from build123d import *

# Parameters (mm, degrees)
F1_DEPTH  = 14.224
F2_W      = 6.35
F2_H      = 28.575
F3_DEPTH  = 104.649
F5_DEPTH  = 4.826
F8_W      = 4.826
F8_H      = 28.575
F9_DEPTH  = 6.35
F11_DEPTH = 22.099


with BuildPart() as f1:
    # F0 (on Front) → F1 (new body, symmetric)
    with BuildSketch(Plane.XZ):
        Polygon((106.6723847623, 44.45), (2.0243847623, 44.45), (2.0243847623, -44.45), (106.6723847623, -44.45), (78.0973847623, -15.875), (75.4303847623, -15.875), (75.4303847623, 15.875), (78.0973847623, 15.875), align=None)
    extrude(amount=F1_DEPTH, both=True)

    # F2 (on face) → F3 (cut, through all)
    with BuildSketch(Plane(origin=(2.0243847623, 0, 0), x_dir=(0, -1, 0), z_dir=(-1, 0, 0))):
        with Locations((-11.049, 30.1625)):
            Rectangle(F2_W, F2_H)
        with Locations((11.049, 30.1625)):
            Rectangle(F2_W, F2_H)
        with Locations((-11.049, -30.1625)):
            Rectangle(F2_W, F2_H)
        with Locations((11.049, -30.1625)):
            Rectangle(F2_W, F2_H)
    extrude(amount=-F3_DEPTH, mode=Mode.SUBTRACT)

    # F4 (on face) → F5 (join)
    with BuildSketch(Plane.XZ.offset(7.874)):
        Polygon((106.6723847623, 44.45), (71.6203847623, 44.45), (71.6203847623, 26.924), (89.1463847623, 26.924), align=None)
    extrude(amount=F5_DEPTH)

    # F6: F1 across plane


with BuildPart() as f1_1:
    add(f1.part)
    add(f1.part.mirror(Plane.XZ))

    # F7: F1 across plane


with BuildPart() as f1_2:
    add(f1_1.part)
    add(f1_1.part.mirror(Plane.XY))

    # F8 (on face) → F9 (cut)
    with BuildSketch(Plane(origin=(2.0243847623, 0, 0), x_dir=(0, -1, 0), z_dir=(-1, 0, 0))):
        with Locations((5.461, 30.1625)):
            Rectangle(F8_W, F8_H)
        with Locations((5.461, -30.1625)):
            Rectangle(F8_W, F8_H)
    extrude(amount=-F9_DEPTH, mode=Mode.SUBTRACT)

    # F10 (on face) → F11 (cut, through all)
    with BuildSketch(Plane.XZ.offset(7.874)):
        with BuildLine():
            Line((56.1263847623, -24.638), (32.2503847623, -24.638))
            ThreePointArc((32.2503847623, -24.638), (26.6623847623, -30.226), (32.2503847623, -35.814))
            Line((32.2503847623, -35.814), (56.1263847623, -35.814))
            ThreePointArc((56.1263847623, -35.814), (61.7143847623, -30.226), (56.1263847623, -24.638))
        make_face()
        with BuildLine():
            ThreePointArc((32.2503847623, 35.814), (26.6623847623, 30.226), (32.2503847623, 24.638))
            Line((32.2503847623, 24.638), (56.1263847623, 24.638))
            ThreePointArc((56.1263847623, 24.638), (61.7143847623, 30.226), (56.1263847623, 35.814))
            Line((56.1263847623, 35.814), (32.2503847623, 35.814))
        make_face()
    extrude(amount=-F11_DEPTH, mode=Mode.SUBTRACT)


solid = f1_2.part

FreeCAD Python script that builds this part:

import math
import FreeCAD as App
import Part
import Sketcher

V = App.Vector
Q = App.Units.Quantity


def add_polygon(sketch, points):
    """Adds a closed chain of lines whose ends are joined by coincident constraints."""
    first, n = sketch.GeometryCount, len(points)
    for a, b in zip(points, points[1:] + points[:1]):
        sketch.addGeometry(Part.LineSegment(App.Vector(*a, 0), App.Vector(*b, 0)), False)
    for i in range(n):
        sketch.addConstraint(Sketcher.Constraint("Coincident", first + i, 2, first + (i + 1) % n, 1))

doc = App.newDocument("Part")
params = doc.addObject("Spreadsheet::Sheet", "Params")
for row, (alias, value) in enumerate([
    ("sketch1_height", "3.5 in"),
    ("sketch1_width", "4.12 in"),
    ("sketch1_height2", "1.25 in"),
    ("sketch1_width2", "0.105 in"),
    ("pad1_length", "1.12 in"),
    ("sketch2_width", "0.25 in"),
    ("sketch2_height", "1.125 in"),
    ("sketch3_width", "1.38 in"),
    ("pad2_length", "0.19 in"),
    ("sketch4_width", "0.19 in"),
    ("sketch4_height", "1.125 in"),
    ("pocket2_length", "0.25 in"),
    ("sketch5_radius", "0.22 in"),
    ("sketch5_width", "0.94 in"),
], start=1):
    params.set(f"A{row}", alias)
    params.set(f"B{row}", "=" + value)
    params.setAlias(f"B{row}", alias)

body = doc.addObject("PartDesign::Body", "Body")

# Sketch on XZ plane
sketch1 = doc.addObject("Sketcher::SketchObject", "Sketch")
body.addObject(sketch1)
sketch1.AttachmentSupport = (doc.XZ_Plane, [""])
sketch1.MapMode = "FlatFace"
add_polygon(sketch1, [(106.7, 44.5), (2, 44.5), (2, -44.5), (106.7, -44.5), (78.1, -15.9), (75.4, -15.9), (75.4, 15.9), (78.1, 15.9)])  # lines 0-7
sketch1.addConstraint(Sketcher.Constraint("Horizontal", 0))
sketch1.addConstraint(Sketcher.Constraint("Vertical", 1))
sketch1.addConstraint(Sketcher.Constraint("Horizontal", 2))
sketch1.addConstraint(Sketcher.Constraint("Horizontal", 4))
sketch1.addConstraint(Sketcher.Constraint("Vertical", 5))
sketch1.addConstraint(Sketcher.Constraint("Horizontal", 6))
sketch1.addConstraint(Sketcher.Constraint("Symmetric", 3, 2, 6, 2, -1))
sketch1.addConstraint(Sketcher.Constraint("Symmetric", 2, 2, 7, 2, -1))
sketch1.addConstraint(Sketcher.Constraint("Perpendicular", 3, 7))
sketch1.addConstraint(Sketcher.Constraint("DistanceY", 1, 2, 1, 1, Q("3.5 in")))
sketch1.addConstraint(Sketcher.Constraint("DistanceX", 0, 2, 0, 1, Q("4.12 in")))
sketch1.addConstraint(Sketcher.Constraint("DistanceY", 5, 1, 5, 2, Q("1.25 in")))
sketch1.addConstraint(Sketcher.Constraint("DistanceX", 4, 2, 4, 1, Q("0.105 in")))
sketch1.addConstraint(Sketcher.Constraint("DistanceX", -1, 1, 0, 2, Q("0.0797002 in")))
sketch1.setExpression("Constraints[17]", "Params.sketch1_height")
sketch1.setExpression("Constraints[18]", "Params.sketch1_width")
sketch1.setExpression("Constraints[19]", "Params.sketch1_height2")
sketch1.setExpression("Constraints[20]", "Params.sketch1_width2")
pad1 = doc.addObject("PartDesign::Pad", "Pad")
body.addObject(pad1)
pad1.Profile = sketch1
pad1.setExpression("Length", "Params.pad1_length")
pad1.Midplane = True

# Sketch on YZ plane
sketch2 = doc.addObject("Sketcher::SketchObject", "Sketch001")
body.addObject(sketch2)
sketch2.AttachmentSupport = (doc.YZ_Plane, [""])
sketch2.MapMode = "FlatFace"
sketch2.AttachmentOffset = App.Placement(V(0, 0, 0.0797002 * 25.4), App.Rotation())
add_polygon(sketch2, [(14, 44), (14, 16), (8, 16), (8, 44)])  # lines 0-3
add_polygon(sketch2, [(-8, 44), (-8, 16), (-14, 16), (-14, 44)])  # lines 4-7
add_polygon(sketch2, [(14, -16), (14, -44), (8, -44), (8, -16)])  # lines 8-11
add_polygon(sketch2, [(-8, -16), (-8, -44), (-14, -44), (-14, -16)])  # lines 12-15
sketch2.addConstraint(Sketcher.Constraint("Vertical", 0))
sketch2.addConstraint(Sketcher.Constraint("Horizontal", 1))
sketch2.addConstraint(Sketcher.Constraint("Vertical", 2))
sketch2.addConstraint(Sketcher.Constraint("Horizontal", 3))
sketch2.addConstraint(Sketcher.Constraint("Vertical", 4))
sketch2.addConstraint(Sketcher.Constraint("Horizontal", 5))
sketch2.addConstraint(Sketcher.Constraint("Vertical", 6))
sketch2.addConstraint(Sketcher.Constraint("Horizontal", 7))
sketch2.addConstraint(Sketcher.Constraint("Vertical", 8))
sketch2.addConstraint(Sketcher.Constraint("Horizontal", 9))
sketch2.addConstraint(Sketcher.Constraint("Vertical", 10))
sketch2.addConstraint(Sketcher.Constraint("Horizontal", 11))
sketch2.addConstraint(Sketcher.Constraint("Vertical", 12))
sketch2.addConstraint(Sketcher.Constraint("Horizontal", 13))
sketch2.addConstraint(Sketcher.Constraint("Vertical", 14))
sketch2.addConstraint(Sketcher.Constraint("Horizontal", 15))
sketch2.addConstraint(Sketcher.Constraint("Symmetric", 6, 2, 8, 2, -1, 1))
sketch2.addConstraint(Sketcher.Constraint("Symmetric", 4, 2, 10, 2, -1, 1))
sketch2.addConstraint(Sketcher.Constraint("Symmetric", 2, 2, 12, 2, -1, 1))
sketch2.addConstraint(Sketcher.Constraint("Symmetric", 0, 2, 14, 2, -1, 1))
sketch2.addConstraint(Sketcher.Constraint("Symmetric", 1, 2, 4, 2, -2))
sketch2.addConstraint(Sketcher.Constraint("Symmetric", 3, 2, 6, 2, -2))
sketch2.addConstraint(Sketcher.Constraint("DistanceX", 1, 2, 1, 1, Q("0.25 in")))
sketch2.addConstraint(Sketcher.Constraint("DistanceY", 8, 2, 3, 2, Q("3.5 in")))
sketch2.addConstraint(Sketcher.Constraint("DistanceY", 0, 2, 0, 1, Q("1.125 in")))
sketch2.addConstraint(Sketcher.Constraint("DistanceX", -1, 1, 0, 2, Q("0.56 in")))
sketch2.setExpression("Constraints[38]", "Params.sketch2_width")
sketch2.setExpression("Constraints[40]", "Params.sketch2_height")
pocket1 = doc.addObject("PartDesign::Pocket", "Pocket")
body.addObject(pocket1)
pocket1.Profile = sketch2
pocket1.Type = "ThroughAll"
pocket1.Reversed = True

# Sketch on XZ plane
sketch3 = doc.addObject("Sketcher::SketchObject", "Sketch002")
body.addObject(sketch3)
sketch3.AttachmentSupport = (doc.XZ_Plane, [""])
sketch3.MapMode = "FlatFace"
sketch3.AttachmentOffset = App.Placement(V(0, 0, 0.31 * 25.4), App.Rotation())
add_polygon(sketch3, [(107, 44), (72, 44), (72, 27), (89, 27)])  # lines 0-3
sketch3.addConstraint(Sketcher.Constraint("Horizontal", 0))
sketch3.addConstraint(Sketcher.Constraint("Vertical", 1))
sketch3.addConstraint(Sketcher.Constraint("Horizontal", 2))
sketch3.addConstraint(Sketcher.Constraint("Equal", 2, 1))
sketch3.addConstraint(Sketcher.Constraint("Angle", 3, Q("45 deg")))
sketch3.addConstraint(Sketcher.Constraint("DistanceX", 0, 2, 0, 1, Q("1.38 in")))
sketch3.addConstraint(Sketcher.Constraint("DistanceY", -1, 1, 0, 2, Q("1.75 in")))
sketch3.addConstraint(Sketcher.Constraint("DistanceX", -1, 1, 0, 2, Q("2.8197002 in")))
sketch3.setExpression("Constraints[9]", "Params.sketch3_width")
pad2 = doc.addObject("PartDesign::Pad", "Pad001")
body.addObject(pad2)
pad2.Profile = sketch3
pad2.setExpression("Length", "Params.pad2_length")
body2 = doc.addObject("PartDesign::Body", "Body001")
doc.recompute()

body2.BaseFeature = body
doc.recompute()

mirroring = doc.addObject("Part::Mirroring", "Mirroring")
mirroring.Source = body
mirroring.Base = V(0, 0, 0)
mirroring.Normal = V(0, -1, 0)
body3 = doc.addObject("PartDesign::Body", "Body002")
body3.BaseFeature = mirroring
boolean = doc.addObject("PartDesign::Boolean", "Boolean")
body2.addObject(boolean)
boolean.Type = "Fuse"
boolean.addObjects([body3])
doc.recompute()
body4 = doc.addObject("PartDesign::Body", "Body003")
doc.recompute()

body4.BaseFeature = body2
doc.recompute()

mirroring2 = doc.addObject("Part::Mirroring", "Mirroring001")
mirroring2.Source = body2
mirroring2.Base = V(0, 0, 0)
mirroring2.Normal = V(0, 0, 1)
body5 = doc.addObject("PartDesign::Body", "Body004")
body5.BaseFeature = mirroring2
boolean2 = doc.addObject("PartDesign::Boolean", "Boolean001")
body4.addObject(boolean2)
boolean2.Type = "Fuse"
boolean2.addObjects([body5])
doc.recompute()

# Sketch on YZ plane
sketch4 = doc.addObject("Sketcher::SketchObject", "Sketch003")
body4.addObject(sketch4)
sketch4.AttachmentSupport = (doc.getObject("YZ_Plane003"), [""])
sketch4.MapMode = "FlatFace"
sketch4.AttachmentOffset = App.Placement(V(0, 0, 0.0797002 * 25.4), App.Rotation())
add_polygon(sketch4, [(-3, 44.5), (-3, 15.9), (-7.9, 15.9), (-7.9, 44.5)])  # lines 0-3
add_polygon(sketch4, [(-3, -15.9), (-3, -44.5), (-7.9, -44.5), (-7.9, -15.9)])  # lines 4-7
sketch4.addConstraint(Sketcher.Constraint("Vertical", 0))
sketch4.addConstraint(Sketcher.Constraint("Horizontal", 1))
sketch4.addConstraint(Sketcher.Constraint("Vertical", 2))
sketch4.addConstraint(Sketcher.Constraint("Horizontal", 3))
sketch4.addConstraint(Sketcher.Constraint("Vertical", 4))
sketch4.addConstraint(Sketcher.Constraint("Horizontal", 5))
sketch4.addConstraint(Sketcher.Constraint("Vertical", 6))
sketch4.addConstraint(Sketcher.Constraint("Horizontal", 7))
sketch4.addConstraint(Sketcher.Constraint("Symmetric", 3, 2, 4, 2, -1))
sketch4.addConstraint(Sketcher.Constraint("Symmetric", 1, 2, 6, 2, -1))
sketch4.addConstraint(Sketcher.Constraint("DistanceX", 1, 2, 1, 1, Q("0.19 in")))
sketch4.addConstraint(Sketcher.Constraint("DistanceY", 4, 2, 3, 2, Q("3.5 in")))
sketch4.addConstraint(Sketcher.Constraint("DistanceY", 0, 2, 0, 1, Q("1.125 in")))
sketch4.addConstraint(Sketcher.Constraint("DistanceX", 0, 2, -1, 1, Q("0.12 in")))
sketch4.setExpression("Constraints[18]", "Params.sketch4_width")
sketch4.setExpression("Constraints[20]", "Params.sketch4_height")
pocket2 = doc.addObject("PartDesign::Pocket", "Pocket001")
body4.addObject(pocket2)
pocket2.Profile = sketch4
pocket2.setExpression("Length", "Params.pocket2_length")
pocket2.Reversed = True

# Sketch on XZ plane
sketch5 = doc.addObject("Sketcher::SketchObject", "Sketch004")
body4.addObject(sketch5)
sketch5.AttachmentSupport = (doc.getObject("XZ_Plane003"), [""])
sketch5.MapMode = "FlatFace"
sketch5.AttachmentOffset = App.Placement(V(0, 0, 0.31 * 25.4), App.Rotation())
sketch5.addGeometry(Part.LineSegment(V(56, -25, 0), V(32, -25, 0)), False)
sketch5.addGeometry(Part.ArcOfCircle(Part.Circle(V(32, -30, 0), V(0, 0, 1), 6), math.radians(90), math.radians(270)), False)
sketch5.addGeometry(Part.LineSegment(V(32, -36, 0), V(56, -36, 0)), False)
sketch5.addGeometry(Part.ArcOfCircle(Part.Circle(V(56, -30, 0), V(0, 0, 1), 6), math.radians(-90), math.radians(90)), False)
sketch5.addGeometry(Part.ArcOfCircle(Part.Circle(V(32, 30, 0), V(0, 0, 1), 6), math.radians(90), math.radians(270)), False)
sketch5.addGeometry(Part.LineSegment(V(32, 25, 0), V(56, 25, 0)), False)
sketch5.addGeometry(Part.ArcOfCircle(Part.Circle(V(56, 30, 0), V(0, 0, 1), 6), math.radians(-90), math.radians(90)), False)
sketch5.addGeometry(Part.LineSegment(V(56, 36, 0), V(32, 36, 0)), False)
sketch5.addConstraint(Sketcher.Constraint("Tangent", 0, 2, 1, 1))
sketch5.addConstraint(Sketcher.Constraint("Tangent", 1, 2, 2, 1))
sketch5.addConstraint(Sketcher.Constraint("Tangent", 2, 2, 3, 1))
sketch5.addConstraint(Sketcher.Constraint("Tangent", 3, 2, 0, 1))
sketch5.addConstraint(Sketcher.Constraint("Tangent", 4, 2, 5, 1))
sketch5.addConstraint(Sketcher.Constraint("Tangent", 5, 2, 6, 1))
sketch5.addConstraint(Sketcher.Constraint("Tangent", 6, 2, 7, 1))
sketch5.addConstraint(Sketcher.Constraint("Tangent", 7, 2, 4, 1))
sketch5.addConstraint(Sketcher.Constraint("Horizontal", 0))
sketch5.addConstraint(Sketcher.Constraint("Horizontal", 2))
sketch5.addConstraint(Sketcher.Constraint("Horizontal", 5))
sketch5.addConstraint(Sketcher.Constraint("Horizontal", 7))
sketch5.addConstraint(Sketcher.Constraint("Equal", 3, 4))
sketch5.addConstraint(Sketcher.Constraint("Symmetric", 1, 3, 4, 3, -1))
sketch5.addConstraint(Sketcher.Constraint("Vertical", 3, 3, 6, 3))
sketch5.addConstraint(Sketcher.Constraint("Radius", 1, Q("0.22 in")))
sketch5.addConstraint(Sketcher.Constraint("DistanceX", 0, 2, 0, 1, Q("0.94 in")))
sketch5.addConstraint(Sketcher.Constraint("DistanceY", 1, 2, 4, 3, Q("2.6 in")))
sketch5.addConstraint(Sketcher.Constraint("DistanceX", -1, 1, 1, 3, Q("1.2697002 in")))
sketch5.setExpression("Constraints[15]", "Params.sketch5_radius")
sketch5.setExpression("Constraints[16]", "Params.sketch5_width")
pocket3 = doc.addObject("PartDesign::Pocket", "Pocket002")
body4.addObject(pocket3)
pocket3.Profile = sketch5
pocket3.Type = "ThroughAll"
mirroring.Visibility = False
mirroring2.Visibility = False

doc.recompute()
